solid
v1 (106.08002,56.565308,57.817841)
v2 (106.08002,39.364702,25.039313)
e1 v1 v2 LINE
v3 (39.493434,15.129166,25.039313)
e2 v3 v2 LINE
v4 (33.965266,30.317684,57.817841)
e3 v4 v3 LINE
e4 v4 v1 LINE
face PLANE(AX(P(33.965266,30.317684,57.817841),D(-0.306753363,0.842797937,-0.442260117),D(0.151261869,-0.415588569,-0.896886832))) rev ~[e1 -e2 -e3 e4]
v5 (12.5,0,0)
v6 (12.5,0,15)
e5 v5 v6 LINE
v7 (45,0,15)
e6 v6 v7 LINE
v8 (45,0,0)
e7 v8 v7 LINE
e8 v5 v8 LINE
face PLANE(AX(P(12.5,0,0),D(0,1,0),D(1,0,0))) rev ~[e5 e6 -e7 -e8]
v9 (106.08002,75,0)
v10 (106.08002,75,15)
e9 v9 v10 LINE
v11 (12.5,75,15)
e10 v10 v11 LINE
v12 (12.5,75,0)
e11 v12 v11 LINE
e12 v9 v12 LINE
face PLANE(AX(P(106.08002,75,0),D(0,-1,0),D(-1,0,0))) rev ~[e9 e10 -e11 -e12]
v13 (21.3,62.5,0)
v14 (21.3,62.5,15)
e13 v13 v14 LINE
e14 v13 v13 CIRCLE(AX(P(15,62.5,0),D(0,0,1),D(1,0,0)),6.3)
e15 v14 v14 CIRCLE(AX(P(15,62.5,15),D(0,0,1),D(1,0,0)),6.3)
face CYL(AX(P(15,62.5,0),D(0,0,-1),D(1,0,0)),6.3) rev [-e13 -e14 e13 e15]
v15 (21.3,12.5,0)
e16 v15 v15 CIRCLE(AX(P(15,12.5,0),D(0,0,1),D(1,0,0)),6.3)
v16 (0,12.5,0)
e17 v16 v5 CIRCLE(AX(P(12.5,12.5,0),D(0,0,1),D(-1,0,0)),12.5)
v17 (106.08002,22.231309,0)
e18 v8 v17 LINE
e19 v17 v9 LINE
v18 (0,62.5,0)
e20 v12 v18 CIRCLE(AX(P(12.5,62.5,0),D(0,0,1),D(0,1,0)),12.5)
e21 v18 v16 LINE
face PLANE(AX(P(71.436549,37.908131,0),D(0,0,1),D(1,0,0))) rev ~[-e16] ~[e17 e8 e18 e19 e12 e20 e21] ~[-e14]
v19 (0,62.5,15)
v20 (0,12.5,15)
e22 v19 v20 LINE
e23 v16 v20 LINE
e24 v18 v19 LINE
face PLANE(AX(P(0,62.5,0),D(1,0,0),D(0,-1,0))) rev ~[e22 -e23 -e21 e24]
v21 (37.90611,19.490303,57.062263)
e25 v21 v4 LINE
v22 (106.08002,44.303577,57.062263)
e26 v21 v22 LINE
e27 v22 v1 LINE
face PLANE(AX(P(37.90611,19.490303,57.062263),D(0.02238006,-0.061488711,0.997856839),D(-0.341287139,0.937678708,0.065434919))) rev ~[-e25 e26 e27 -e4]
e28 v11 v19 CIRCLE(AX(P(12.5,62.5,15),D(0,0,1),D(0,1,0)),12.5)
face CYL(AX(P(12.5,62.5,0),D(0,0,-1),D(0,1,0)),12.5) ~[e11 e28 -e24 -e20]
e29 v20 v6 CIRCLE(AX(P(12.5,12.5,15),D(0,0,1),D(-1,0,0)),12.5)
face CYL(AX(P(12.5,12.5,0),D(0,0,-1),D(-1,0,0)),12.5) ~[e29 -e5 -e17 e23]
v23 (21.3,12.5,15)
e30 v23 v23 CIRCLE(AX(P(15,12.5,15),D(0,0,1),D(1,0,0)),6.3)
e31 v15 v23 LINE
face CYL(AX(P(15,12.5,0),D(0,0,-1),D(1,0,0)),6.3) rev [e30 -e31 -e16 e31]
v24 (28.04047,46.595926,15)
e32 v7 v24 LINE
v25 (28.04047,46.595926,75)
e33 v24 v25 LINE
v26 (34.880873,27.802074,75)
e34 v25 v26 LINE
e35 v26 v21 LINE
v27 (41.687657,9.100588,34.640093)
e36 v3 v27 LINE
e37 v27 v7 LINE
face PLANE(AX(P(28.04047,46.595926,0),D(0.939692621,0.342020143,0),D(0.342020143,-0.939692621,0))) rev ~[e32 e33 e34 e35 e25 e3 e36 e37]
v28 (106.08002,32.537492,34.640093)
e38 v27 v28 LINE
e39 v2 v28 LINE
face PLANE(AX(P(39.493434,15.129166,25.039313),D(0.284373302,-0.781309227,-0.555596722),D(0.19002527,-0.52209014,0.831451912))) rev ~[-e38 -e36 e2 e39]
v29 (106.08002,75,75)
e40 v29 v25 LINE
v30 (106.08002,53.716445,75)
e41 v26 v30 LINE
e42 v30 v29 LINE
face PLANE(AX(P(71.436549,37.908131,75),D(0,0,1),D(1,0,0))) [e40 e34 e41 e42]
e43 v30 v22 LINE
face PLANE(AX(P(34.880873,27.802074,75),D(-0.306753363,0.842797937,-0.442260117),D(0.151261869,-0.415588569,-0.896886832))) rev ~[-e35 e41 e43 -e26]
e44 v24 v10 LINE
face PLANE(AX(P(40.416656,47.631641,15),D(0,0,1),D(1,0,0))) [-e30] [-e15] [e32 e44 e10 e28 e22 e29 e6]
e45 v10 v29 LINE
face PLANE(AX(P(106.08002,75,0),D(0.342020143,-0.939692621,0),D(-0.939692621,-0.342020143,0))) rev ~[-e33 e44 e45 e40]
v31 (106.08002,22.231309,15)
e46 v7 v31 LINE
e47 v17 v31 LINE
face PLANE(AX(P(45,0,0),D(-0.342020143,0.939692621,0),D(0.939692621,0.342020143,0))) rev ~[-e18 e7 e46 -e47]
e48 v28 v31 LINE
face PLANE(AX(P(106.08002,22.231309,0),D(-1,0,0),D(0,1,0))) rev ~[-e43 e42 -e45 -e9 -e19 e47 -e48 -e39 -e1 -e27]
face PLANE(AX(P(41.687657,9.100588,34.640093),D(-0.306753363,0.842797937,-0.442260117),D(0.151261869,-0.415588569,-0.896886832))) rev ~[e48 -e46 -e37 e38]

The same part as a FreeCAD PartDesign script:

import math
import FreeCAD as App
import Part
import Sketcher

V = App.Vector
Q = App.Units.Quantity


def add_polygon(sketch, points):
    """Adds a closed chain of lines whose ends are joined by coincident constraints."""
    first, n = sketch.GeometryCount, len(points)
    for a, b in zip(points, points[1:] + points[:1]):
        sketch.addGeometry(Part.LineSegment(App.Vector(*a, 0), App.Vector(*b, 0)), False)
    for i in range(n):
        sketch.addConstraint(Sketcher.Constraint("Coincident", first + i, 2, first + (i + 1) % n, 1))

doc = App.newDocument("Part")
params = doc.addObject("Spreadsheet::Sheet", "Params")
for row, (alias, value) in enumerate([
    ("sketch1_diameter", "12.6 mm"),
    ("sketch1_radius", "12.5 mm"),
    ("sketch1_height", "50 mm"),
    ("sketch1_width", "32.5 mm"),
    ("pad1_length", "15 mm"),
    ("sketch2_length", "65 mm"),
    ("pad2_length", "75 mm"),
    ("sketch3_height", "60 mm"),
    ("sketch3_length", "20 mm"),
], start=1):
    params.set(f"A{row}", alias)
    params.set(f"B{row}", "=" + value)
    params.setAlias(f"B{row}", alias)

body = doc.addObject("PartDesign::Body", "Body")

# Sketch on XY plane
sketch1 = doc.addObject("Sketcher::SketchObject", "Sketch")
body.addObject(sketch1)
sketch1.AttachmentSupport = (doc.XY_Plane, [""])
sketch1.MapMode = "FlatFace"
sketch1.addGeometry(Part.LineSegment(V(0, 62, 0), V(0, 12, 0)), False)
sketch1.addGeometry(Part.ArcOfCircle(Part.Circle(V(12, 12, 0), V(0, 0, 1), 12), math.radians(180), math.radians(270)), False)
sketch1.addGeometry(Part.LineSegment(V(12, 0, 0), V(45, 0, 0)), False)
sketch1.addGeometry(Part.LineSegment(V(45, 0, 0), V(28, 47, 0)), False)
sketch1.addGeometry(Part.LineSegment(V(28, 47, 0), V(106, 75, 0)), False)
sketch1.addGeometry(Part.LineSegment(V(106, 75, 0), V(12, 75, 0)), False)
sketch1.addGeometry(Part.ArcOfCircle(Part.Circle(V(12, 62, 0), V(0, 0, 1), 12), math.radians(90), math.radians(180)), False)
sketch1.addGeometry(Part.Circle(V(15, 12, 0), V(0, 0, 1), 6), False)
sketch1.addGeometry(Part.Circle(V(15, 62, 0), V(0, 0, 1), 6), False)
sketch1.addConstraint(Sketcher.Constraint("Tangent", 0, 2, 1, 1))
sketch1.addConstraint(Sketcher.Constraint("Tangent", 1, 2, 2, 1))
sketch1.addConstraint(Sketcher.Constraint("Coincident", 2, 2, 3, 1))
sketch1.addConstraint(Sketcher.Constraint("Coincident", 3, 2, 4, 1))
sketch1.addConstraint(Sketcher.Constraint("Coincident", 4, 2, 5, 1))
sketch1.addConstraint(Sketcher.Constraint("Tangent", 5, 2, 6, 1))
sketch1.addConstraint(Sketcher.Constraint("Tangent", 6, 2, 0, 1))
sketch1.addConstraint(Sketcher.Constraint("Vertical", 0))
sketch1.addConstraint(Sketcher.Constraint("Horizontal", 2))
sketch1.addConstraint(Sketcher.Constraint("Horizontal", 5))
sketch1.addConstraint(Sketcher.Constraint("Equal", 1, 6))
sketch1.addConstraint(Sketcher.Constraint("Equal", 7, 8))
sketch1.addConstraint(Sketcher.Constraint("PointOnObject", 0, 2, -2))
sketch1.addConstraint(Sketcher.Constraint("PointOnObject", 1, 2, -1))
sketch1.addConstraint(Sketcher.Constraint("Perpendicular", 3, 4))
sketch1.addConstraint(Sketcher.Constraint("Horizontal", 1, 3, 7, 3))
sketch1.addConstraint(Sketcher.Constraint("Horizontal", 6, 3, 8, 3))
sketch1.addConstraint(Sketcher.Constraint("Vertical", 7, 3, 8, 3))
sketch1.addConstraint(Sketcher.Constraint("Diameter", 7, Q("12.6 mm")))
sketch1.addConstraint(Sketcher.Constraint("Radius", 1, Q("12.5 mm")))
sketch1.addConstraint(Sketcher.Constraint("DistanceY", 0, 2, 0, 1, Q("50 mm")))
sketch1.addConstraint(Sketcher.Constraint("Angle", 3, Q("110 deg")))
sketch1.addConstraint(Sketcher.Constraint("DistanceX", 2, 1, 2, 2, Q("32.5 mm")))
sketch1.addConstraint(Sketcher.Constraint("DistanceX", -1, 1, 7, 3, Q("15 mm")))
sketch1.addConstraint(Sketcher.Constraint("DistanceX", 5, 2, 5, 1, Q("93.58002 mm")))
sketch1.setExpression("Constraints[18]", "Params.sketch1_diameter")
sketch1.setExpression("Constraints[19]", "Params.sketch1_radius")
sketch1.setExpression("Constraints[20]", "Params.sketch1_height")
sketch1.setExpression("Constraints[22]", "Params.sketch1_width")
pad1 = doc.addObject("PartDesign::Pad", "Pad")
body.addObject(pad1)
pad1.Profile = sketch1
pad1.setExpression("Length", "Params.pad1_length")

# Sketch on XY plane
sketch2 = doc.addObject("Sketcher::SketchObject", "Sketch001")
body.addObject(sketch2)
sketch2.AttachmentSupport = (doc.XY_Plane, [""])
sketch2.MapMode = "FlatFace"
add_polygon(sketch2, [(28, 47), (45, 0), (106, 22), (106, 75)])  # lines 0-3
sketch2.addConstraint(Sketcher.Constraint("Vertical", 2))
sketch2.addConstraint(Sketcher.Constraint("PointOnObject", 0, 2, -1))
sketch2.addConstraint(Sketcher.Constraint("Perpendicular", 0, 1))
sketch2.addConstraint(Sketcher.Constraint("Parallel", 1, 3))
sketch2.addConstraint(Sketcher.Constraint("Angle", 0, Q("-70 deg")))
sketch2.addConstraint(Sketcher.Constraint("Distance", 1, Q("65 mm")))
sketch2.addConstraint(Sketcher.Constraint("DistanceX", -1, 1, 0, 2, Q("45 mm")))
sketch2.addConstraint(Sketcher.Constraint("DistanceY", -1, 1, 2, 2, Q("75 mm")))
sketch2.setExpression("Constraints[9]", "Params.sketch2_length")
pad2 = doc.addObject("PartDesign::Pad", "Pad001")
body.addObject(pad2)
pad2.Profile = sketch2
pad2.setExpression("Length", "Params.pad2_length")

# Sketch on an angled plane
sketch3 = doc.addObject("Sketcher::SketchObject", "Sketch002")
body.addObject(sketch3)
sketch3.Placement = App.Placement(V(39.736, 14.462721, 0), App.Rotation(V(0.342020143, -0.939692621, 0), V(0, 0, 1), V(-0.939692621, -0.342020143, 0), "ZXY"))
add_polygon(sketch3, [(-1, 25), (6, 35), (15, 15), (15, 75), (-14, 75), (-5, 57), (-17, 58)])  # lines 0-6
sketch3.addConstraint(Sketcher.Constraint("Vertical", 2))
sketch3.addConstraint(Sketcher.Constraint("Horizontal", 3))
sketch3.addConstraint(Sketcher.Constraint("Parallel", 1, 4))
sketch3.addConstraint(Sketcher.Constraint("Parallel", 4, 6))
sketch3.addConstraint(Sketcher.Constraint("Equal", 0, 5))
sketch3.addConstraint(Sketcher.Constraint("DistanceY", 2, 1, 2, 2, Q("60 mm")))
sketch3.addConstraint(Sketcher.Constraint("Distance", 4, Q("20 mm")))
sketch3.addConstraint(Sketcher.Constraint("DistanceY", -1, 1, 1, 2, Q("15 mm")))
sketch3.addConstraint(Sketcher.Constraint("DistanceX", 3, 2, 3, 1, Q("29.586349 mm")))
sketch3.addConstraint(Sketcher.Constraint("DistanceX", 5, 2, -1, 1, Q("16.872499 mm")))
sketch3.addConstraint(Sketcher.Constraint("DistanceX", 4, 2, -1, 1, Q("5.35024 mm")))
sketch3.addConstraint(Sketcher.Constraint("DistanceY", -1, 1, 5, 2, Q("57.817841 mm")))
sketch3.addConstraint(Sketcher.Constraint("DistanceY", 0, 2, 4, 2, Q("22.422171 mm")))
sketch3.addConstraint(Sketcher.Constraint("DistanceX", 5, 2, 0, 2, Q("22.578761 mm")))
sketch3.setExpression("Constraints[12]", "Params.sketch3_height")
sketch3.setExpression("Constraints[13]", "Params.sketch3_length")
pocket1 = doc.addObject("PartDesign::Pocket", "Pocket")
body.addObject(pocket1)
pocket1.Profile = sketch3
pocket1.Type = "ThroughAll"

doc.recompute()
